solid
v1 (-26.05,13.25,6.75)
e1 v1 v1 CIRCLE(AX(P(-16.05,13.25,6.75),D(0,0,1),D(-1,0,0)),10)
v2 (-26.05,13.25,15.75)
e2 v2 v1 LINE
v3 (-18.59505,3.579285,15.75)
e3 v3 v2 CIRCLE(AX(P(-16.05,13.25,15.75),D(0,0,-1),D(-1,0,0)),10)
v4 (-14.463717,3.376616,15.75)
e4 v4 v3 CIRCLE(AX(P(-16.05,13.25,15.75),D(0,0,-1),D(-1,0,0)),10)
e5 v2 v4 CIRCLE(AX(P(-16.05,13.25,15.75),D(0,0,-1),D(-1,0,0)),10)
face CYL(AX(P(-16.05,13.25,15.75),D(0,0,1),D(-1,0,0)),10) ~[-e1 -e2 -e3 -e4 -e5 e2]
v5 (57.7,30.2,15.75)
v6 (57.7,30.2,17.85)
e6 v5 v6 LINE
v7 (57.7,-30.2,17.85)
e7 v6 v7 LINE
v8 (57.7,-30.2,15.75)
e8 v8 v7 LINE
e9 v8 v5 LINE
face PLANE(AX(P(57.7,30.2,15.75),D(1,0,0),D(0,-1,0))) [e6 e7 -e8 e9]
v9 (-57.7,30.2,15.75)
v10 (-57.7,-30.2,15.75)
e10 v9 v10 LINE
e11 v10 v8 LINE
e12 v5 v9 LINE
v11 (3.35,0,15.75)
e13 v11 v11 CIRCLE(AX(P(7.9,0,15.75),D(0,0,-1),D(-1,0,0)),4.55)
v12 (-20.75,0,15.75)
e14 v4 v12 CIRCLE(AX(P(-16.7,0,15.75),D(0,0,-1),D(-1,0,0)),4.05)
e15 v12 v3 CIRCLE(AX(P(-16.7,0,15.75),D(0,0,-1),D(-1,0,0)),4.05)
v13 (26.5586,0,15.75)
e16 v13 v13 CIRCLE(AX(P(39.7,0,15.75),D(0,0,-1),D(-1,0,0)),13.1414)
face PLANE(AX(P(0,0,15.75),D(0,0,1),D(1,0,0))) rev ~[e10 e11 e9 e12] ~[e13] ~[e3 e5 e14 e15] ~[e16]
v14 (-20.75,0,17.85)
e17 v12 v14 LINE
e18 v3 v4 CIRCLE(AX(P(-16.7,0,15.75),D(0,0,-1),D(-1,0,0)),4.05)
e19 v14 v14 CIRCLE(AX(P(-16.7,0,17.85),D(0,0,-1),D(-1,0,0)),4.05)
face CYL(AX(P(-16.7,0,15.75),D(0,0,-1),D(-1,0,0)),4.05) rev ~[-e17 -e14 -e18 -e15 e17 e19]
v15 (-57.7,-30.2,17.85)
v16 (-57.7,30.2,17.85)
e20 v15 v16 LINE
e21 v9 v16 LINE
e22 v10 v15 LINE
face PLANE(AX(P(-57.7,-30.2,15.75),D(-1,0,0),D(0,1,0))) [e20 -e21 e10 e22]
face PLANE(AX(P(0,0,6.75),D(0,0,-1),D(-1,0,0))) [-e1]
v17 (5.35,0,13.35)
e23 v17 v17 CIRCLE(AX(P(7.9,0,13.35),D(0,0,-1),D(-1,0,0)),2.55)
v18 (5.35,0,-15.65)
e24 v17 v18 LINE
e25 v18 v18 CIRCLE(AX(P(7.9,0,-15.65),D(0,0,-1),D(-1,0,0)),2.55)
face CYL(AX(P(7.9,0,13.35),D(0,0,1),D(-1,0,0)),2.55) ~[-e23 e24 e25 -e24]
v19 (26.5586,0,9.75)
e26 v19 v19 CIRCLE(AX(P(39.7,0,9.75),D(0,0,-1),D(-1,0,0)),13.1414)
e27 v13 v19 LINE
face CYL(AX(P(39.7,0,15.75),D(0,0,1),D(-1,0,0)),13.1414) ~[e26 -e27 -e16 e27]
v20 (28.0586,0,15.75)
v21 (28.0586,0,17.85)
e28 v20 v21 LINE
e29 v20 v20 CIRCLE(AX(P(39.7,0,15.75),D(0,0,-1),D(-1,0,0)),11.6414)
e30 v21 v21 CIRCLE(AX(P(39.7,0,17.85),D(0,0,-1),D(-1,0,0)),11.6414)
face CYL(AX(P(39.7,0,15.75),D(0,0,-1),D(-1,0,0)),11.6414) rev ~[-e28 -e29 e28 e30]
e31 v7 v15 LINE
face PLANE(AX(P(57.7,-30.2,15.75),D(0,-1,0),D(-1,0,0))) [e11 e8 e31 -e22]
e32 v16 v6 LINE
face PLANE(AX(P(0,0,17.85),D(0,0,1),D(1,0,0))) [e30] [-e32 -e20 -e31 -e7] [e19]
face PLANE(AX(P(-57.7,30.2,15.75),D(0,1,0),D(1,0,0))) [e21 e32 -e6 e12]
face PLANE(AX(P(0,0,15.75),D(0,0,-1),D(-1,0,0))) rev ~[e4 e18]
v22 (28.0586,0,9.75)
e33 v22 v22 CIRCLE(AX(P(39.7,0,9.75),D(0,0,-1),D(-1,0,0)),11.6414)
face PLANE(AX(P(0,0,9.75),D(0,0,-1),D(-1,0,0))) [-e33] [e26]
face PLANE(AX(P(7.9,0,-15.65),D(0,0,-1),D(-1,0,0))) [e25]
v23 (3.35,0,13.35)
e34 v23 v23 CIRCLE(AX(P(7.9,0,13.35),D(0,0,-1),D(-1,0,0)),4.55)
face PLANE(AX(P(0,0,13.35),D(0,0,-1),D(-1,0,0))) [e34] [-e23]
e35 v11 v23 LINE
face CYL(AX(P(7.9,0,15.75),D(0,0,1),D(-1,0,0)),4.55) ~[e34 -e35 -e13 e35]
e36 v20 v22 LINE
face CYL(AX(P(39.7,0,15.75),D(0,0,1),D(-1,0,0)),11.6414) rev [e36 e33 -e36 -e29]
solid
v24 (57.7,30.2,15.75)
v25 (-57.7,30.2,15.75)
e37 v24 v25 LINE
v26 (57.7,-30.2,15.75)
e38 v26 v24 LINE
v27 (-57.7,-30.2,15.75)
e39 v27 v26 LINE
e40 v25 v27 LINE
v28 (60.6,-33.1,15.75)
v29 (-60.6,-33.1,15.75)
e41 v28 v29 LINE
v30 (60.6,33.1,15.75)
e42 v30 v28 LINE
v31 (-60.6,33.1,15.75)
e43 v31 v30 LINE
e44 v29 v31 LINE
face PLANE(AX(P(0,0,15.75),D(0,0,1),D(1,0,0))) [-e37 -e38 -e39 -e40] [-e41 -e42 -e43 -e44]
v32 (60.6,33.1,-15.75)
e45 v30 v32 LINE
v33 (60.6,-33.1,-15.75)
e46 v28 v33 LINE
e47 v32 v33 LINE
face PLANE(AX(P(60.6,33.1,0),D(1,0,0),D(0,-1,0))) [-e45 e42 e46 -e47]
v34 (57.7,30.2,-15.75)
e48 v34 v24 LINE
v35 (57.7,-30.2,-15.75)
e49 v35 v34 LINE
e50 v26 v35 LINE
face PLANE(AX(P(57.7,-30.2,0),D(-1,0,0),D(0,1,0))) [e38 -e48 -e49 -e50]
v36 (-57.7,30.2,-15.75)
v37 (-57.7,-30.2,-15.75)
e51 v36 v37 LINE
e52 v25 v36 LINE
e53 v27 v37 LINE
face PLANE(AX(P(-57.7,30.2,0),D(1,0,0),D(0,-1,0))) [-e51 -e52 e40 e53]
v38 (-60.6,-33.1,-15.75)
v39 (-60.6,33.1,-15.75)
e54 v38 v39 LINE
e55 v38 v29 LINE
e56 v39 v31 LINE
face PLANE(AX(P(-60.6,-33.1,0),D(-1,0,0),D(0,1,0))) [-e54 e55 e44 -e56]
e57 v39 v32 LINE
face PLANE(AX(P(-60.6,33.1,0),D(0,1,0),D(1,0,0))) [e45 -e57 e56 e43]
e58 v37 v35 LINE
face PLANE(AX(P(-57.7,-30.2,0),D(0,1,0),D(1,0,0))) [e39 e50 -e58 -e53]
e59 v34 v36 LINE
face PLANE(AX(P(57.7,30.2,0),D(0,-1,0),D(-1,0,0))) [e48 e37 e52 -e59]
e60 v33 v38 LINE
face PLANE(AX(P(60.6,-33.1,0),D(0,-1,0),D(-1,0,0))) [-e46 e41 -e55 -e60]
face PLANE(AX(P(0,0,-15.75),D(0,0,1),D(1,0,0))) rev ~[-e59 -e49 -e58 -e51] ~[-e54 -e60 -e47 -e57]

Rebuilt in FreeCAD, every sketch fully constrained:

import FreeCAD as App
import Part
import Sketcher
Q = App.Units.Quantity

doc = App.newDocument("Part")
body = doc.addObject("PartDesign::Body", "Body")
body.AllowCompound = True

# Sketch on XY plane
sketch1 = body.newObject("Sketcher::SketchObject", "Sketch")
sketch1.AttachmentSupport = (doc.getObject("XY_Plane"), [""])
sketch1.MapMode = "FlatFace"
sketch1.addGeometry([
    Part.LineSegment(App.Vector(61, 33, 0), App.Vector(-61, 33, 0)),  # 0
    Part.LineSegment(App.Vector(-61, 33, 0), App.Vector(-61, -33, 0)),  # 1
    Part.LineSegment(App.Vector(-61, -33, 0), App.Vector(61, -33, 0)),  # 2
    Part.LineSegment(App.Vector(61, -33, 0), App.Vector(61, 33, 0)),  # 3
    Part.LineSegment(App.Vector(-58, 30, 0), App.Vector(58, 30, 0)),  # 4
    Part.LineSegment(App.Vector(58, 30, 0), App.Vector(58, -30, 0)),  # 5
    Part.LineSegment(App.Vector(58, -30, 0), App.Vector(-58, -30, 0)),  # 6
    Part.LineSegment(App.Vector(-58, -30, 0), App.Vector(-58, 30, 0)),  # 7
], False)
sketch1.addConstraint([
    Sketcher.Constraint("Coincident", 0, 2, 1, 1),
    Sketcher.Constraint("Coincident", 1, 2, 2, 1),
    Sketcher.Constraint("Coincident", 2, 2, 3, 1),
    Sketcher.Constraint("Coincident", 3, 2, 0, 1),
    Sketcher.Constraint("Coincident", 4, 2, 5, 1),
    Sketcher.Constraint("Coincident", 5, 2, 6, 1),
    Sketcher.Constraint("Coincident", 6, 2, 7, 1),
    Sketcher.Constraint("Coincident", 7, 2, 4, 1),
    Sketcher.Constraint("Horizontal", 0),
    Sketcher.Constraint("Vertical", 1),
    Sketcher.Constraint("Horizontal", 2),
    Sketcher.Constraint("Vertical", 3),
    Sketcher.Constraint("Horizontal", 4),
    Sketcher.Constraint("Vertical", 5),
    Sketcher.Constraint("Horizontal", 6),
    Sketcher.Constraint("Vertical", 7),
    Sketcher.Constraint("Symmetric", 0, 2, 2, 2, -1, 1),
    Sketcher.Constraint("Symmetric", 4, 2, 6, 2, -1, 1),
    Sketcher.Constraint("DistanceX", 0, 2, 0, 1, Q("121.2 mm")),
    Sketcher.Constraint("DistanceY", 1, 2, 1, 1, Q("66.2 mm")),
    Sketcher.Constraint("DistanceX", 4, 2, 3, 2, Q("2.9 mm")),
    Sketcher.Constraint("DistanceY", 4, 2, 3, 2, Q("2.9 mm")),
])
pad1 = body.newObject("PartDesign::Pad", "Pad")
pad1.Profile = sketch1
pad1.Length = 31.5
pad1.Midplane = True

# Sketch on XY plane
sketch2 = body.newObject("Sketcher::SketchObject", "Sketch001")
sketch2.AttachmentSupport = (doc.getObject("XY_Plane"), [""])
sketch2.MapMode = "FlatFace"
sketch2.AttachmentOffset = App.Placement(App.Vector(0, 0, 15.75), App.Rotation())
sketch2.addGeometry([
    Part.LineSegment(App.Vector(58, 30, 0), App.Vector(-58, 30, 0)),
    Part.LineSegment(App.Vector(-58, 30, 0), App.Vector(-58, -30, 0)),
    Part.LineSegment(App.Vector(-58, -30, 0), App.Vector(58, -30, 0)),
    Part.LineSegment(App.Vector(58, -30, 0), App.Vector(58, 30, 0)),
], False)
sketch2.addConstraint([
    Sketcher.Constraint("Coincident", 0, 2, 1, 1),
    Sketcher.Constraint("Coincident", 1, 2, 2, 1),
    Sketcher.Constraint("Coincident", 2, 2, 3, 1),
    Sketcher.Constraint("Coincident", 3, 2, 0, 1),
    Sketcher.Constraint("Horizontal", 0),
    Sketcher.Constraint("Vertical", 1),
    Sketcher.Constraint("Horizontal", 2),
    Sketcher.Constraint("Vertical", 3),
    Sketcher.Constraint("Symmetric", 0, 2, 2, 2, -1, 1),
    Sketcher.Constraint("DistanceX", 0, 2, 0, 1, Q("115.4 mm")),
    Sketcher.Constraint("DistanceY", 1, 2, 1, 1, Q("60.4 mm")),
])
pad2 = body.newObject("PartDesign::Pad", "Pad001")
pad2.Profile = sketch2
pad2.Length = 2.1

# Sketch on XY plane
sketch3 = body.newObject("Sketcher::SketchObject", "Sketch002")
sketch3.AttachmentSupport = (doc.getObject("XY_Plane"), [""])
sketch3.MapMode = "FlatFace"
sketch3.AttachmentOffset = App.Placement(App.Vector(0, 0, 15.75), App.Rotation())
sketch3.addGeometry([
    Part.Circle(App.Vector(-16.7, 0, 0), App.Vector(0, 0, 1), 4),
    Part.Circle(App.Vector(39.7, 0, 0), App.Vector(0, 0, 1), 11.6),
], False)
sketch3.addConstraint([
    Sketcher.Constraint("PointOnObject", 0, 3, -1),
    Sketcher.Constraint("PointOnObject", 1, 3, -1),
    Sketcher.Constraint("Diameter", 0, Q("8.1 mm")),
    Sketcher.Constraint("DistanceX", 0, 3, 1, 3, Q("56.4 mm")),
    Sketcher.Constraint("Diameter", 1, Q("23.2828 mm")),
    Sketcher.Constraint("DistanceX", 0, 3, -1, 1, Q("16.7 mm")),
])
pocket1 = body.newObject("PartDesign::Pocket", "Pocket")
pocket1.Profile = sketch3
pocket1.Type = "ThroughAll"
pocket1.Reversed = True

# Sketch on XY plane
sketch4 = body.newObject("Sketcher::SketchObject", "Sketch003")
sketch4.AttachmentSupport = (doc.getObject("XY_Plane"), [""])
sketch4.MapMode = "FlatFace"
sketch4.AttachmentOffset = App.Placement(App.Vector(0, 0, 15.75), App.Rotation())
sketch4.addGeometry([
    Part.Circle(App.Vector(40, 0, 0), App.Vector(0, 0, 1), 13),
    Part.Circle(App.Vector(40, 0, 0), App.Vector(0, 0, 1), 12),
], False)
sketch4.addConstraint([
    Sketcher.Constraint("Coincident", 1, 3, 0, 3),
    Sketcher.Constraint("PointOnObject", 0, 3, -1),
    Sketcher.Constraint("Diameter", 0, Q("26.2828 mm")),
    Sketcher.Constraint("Diameter", 1, Q("23.2828 mm")),
    Sketcher.Constraint("DistanceX", -1, 1, 0, 3, Q("39.7 mm")),
])
pad3 = body.newObject("PartDesign::Pad", "Pad002")
pad3.Profile = sketch4
pad3.Length = 6
pad3.Reversed = True

# Sketch on XY plane
sketch5 = body.newObject("Sketcher::SketchObject", "Sketch004")
sketch5.AttachmentSupport = (doc.getObject("XY_Plane"), [""])
sketch5.MapMode = "FlatFace"
sketch5.AttachmentOffset = App.Placement(App.Vector(0, 0, 15.75), App.Rotation())
sketch5.addGeometry(Part.Circle(App.Vector(7.9, 0, 0), App.Vector(0, 0, 1), 4.5), False)
sketch5.addConstraint([
    Sketcher.Constraint("PointOnObject", 0, 3, -1),
    Sketcher.Constraint("Diameter", 0, Q("9.1 mm")),
    Sketcher.Constraint("DistanceX", -1, 1, 0, 3, Q("7.9 mm")),
])
pad4 = body.newObject("PartDesign::Pad", "Pad003")
pad4.Profile = sketch5
pad4.Length = 2.4
pad4.Reversed = True

# Sketch on XY plane
sketch6 = body.newObject("Sketcher::SketchObject", "Sketch005")
sketch6.AttachmentSupport = (doc.getObject("XY_Plane"), [""])
sketch6.MapMode = "FlatFace"
sketch6.AttachmentOffset = App.Placement(App.Vector(0, 0, 13.35), App.Rotation())
sketch6.addGeometry(Part.Circle(App.Vector(7.9, 0, 0), App.Vector(0, 0, 1), 2.5), False)
sketch6.addConstraint([
    Sketcher.Constraint("PointOnObject", 0, 3, -1),
    Sketcher.Constraint("Diameter", 0, Q("5.1 mm")),
    Sketcher.Constraint("DistanceX", -1, 1, 0, 3, Q("7.9 mm")),
])
pad5 = body.newObject("PartDesign::Pad", "Pad004")
pad5.Profile = sketch6
pad5.Length = 29
pad5.Reversed = True

# Sketch on XY plane
sketch7 = body.newObject("Sketcher::SketchObject", "Sketch006")
sketch7.AttachmentSupport = (doc.getObject("XY_Plane"), [""])
sketch7.MapMode = "FlatFace"
sketch7.AttachmentOffset = App.Placement(App.Vector(0, 0, 15.75), App.Rotation())
sketch7.addGeometry(Part.Circle(App.Vector(-16, 13, 0), App.Vector(0, 0, 1), 10), False)
sketch7.addConstraint([
    Sketcher.Constraint("Diameter", 0, Q("20 mm")),
    Sketcher.Constraint("DistanceY", -1, 1, 0, 3, Q("13.25 mm")),
    Sketcher.Constraint("DistanceX", 0, 3, -1, 1, Q("16.05 mm")),
])
pad6 = body.newObject("PartDesign::Pad", "Pad005")
pad6.Profile = sketch7
pad6.Length = 9
pad6.Reversed = True

doc.recompute()
